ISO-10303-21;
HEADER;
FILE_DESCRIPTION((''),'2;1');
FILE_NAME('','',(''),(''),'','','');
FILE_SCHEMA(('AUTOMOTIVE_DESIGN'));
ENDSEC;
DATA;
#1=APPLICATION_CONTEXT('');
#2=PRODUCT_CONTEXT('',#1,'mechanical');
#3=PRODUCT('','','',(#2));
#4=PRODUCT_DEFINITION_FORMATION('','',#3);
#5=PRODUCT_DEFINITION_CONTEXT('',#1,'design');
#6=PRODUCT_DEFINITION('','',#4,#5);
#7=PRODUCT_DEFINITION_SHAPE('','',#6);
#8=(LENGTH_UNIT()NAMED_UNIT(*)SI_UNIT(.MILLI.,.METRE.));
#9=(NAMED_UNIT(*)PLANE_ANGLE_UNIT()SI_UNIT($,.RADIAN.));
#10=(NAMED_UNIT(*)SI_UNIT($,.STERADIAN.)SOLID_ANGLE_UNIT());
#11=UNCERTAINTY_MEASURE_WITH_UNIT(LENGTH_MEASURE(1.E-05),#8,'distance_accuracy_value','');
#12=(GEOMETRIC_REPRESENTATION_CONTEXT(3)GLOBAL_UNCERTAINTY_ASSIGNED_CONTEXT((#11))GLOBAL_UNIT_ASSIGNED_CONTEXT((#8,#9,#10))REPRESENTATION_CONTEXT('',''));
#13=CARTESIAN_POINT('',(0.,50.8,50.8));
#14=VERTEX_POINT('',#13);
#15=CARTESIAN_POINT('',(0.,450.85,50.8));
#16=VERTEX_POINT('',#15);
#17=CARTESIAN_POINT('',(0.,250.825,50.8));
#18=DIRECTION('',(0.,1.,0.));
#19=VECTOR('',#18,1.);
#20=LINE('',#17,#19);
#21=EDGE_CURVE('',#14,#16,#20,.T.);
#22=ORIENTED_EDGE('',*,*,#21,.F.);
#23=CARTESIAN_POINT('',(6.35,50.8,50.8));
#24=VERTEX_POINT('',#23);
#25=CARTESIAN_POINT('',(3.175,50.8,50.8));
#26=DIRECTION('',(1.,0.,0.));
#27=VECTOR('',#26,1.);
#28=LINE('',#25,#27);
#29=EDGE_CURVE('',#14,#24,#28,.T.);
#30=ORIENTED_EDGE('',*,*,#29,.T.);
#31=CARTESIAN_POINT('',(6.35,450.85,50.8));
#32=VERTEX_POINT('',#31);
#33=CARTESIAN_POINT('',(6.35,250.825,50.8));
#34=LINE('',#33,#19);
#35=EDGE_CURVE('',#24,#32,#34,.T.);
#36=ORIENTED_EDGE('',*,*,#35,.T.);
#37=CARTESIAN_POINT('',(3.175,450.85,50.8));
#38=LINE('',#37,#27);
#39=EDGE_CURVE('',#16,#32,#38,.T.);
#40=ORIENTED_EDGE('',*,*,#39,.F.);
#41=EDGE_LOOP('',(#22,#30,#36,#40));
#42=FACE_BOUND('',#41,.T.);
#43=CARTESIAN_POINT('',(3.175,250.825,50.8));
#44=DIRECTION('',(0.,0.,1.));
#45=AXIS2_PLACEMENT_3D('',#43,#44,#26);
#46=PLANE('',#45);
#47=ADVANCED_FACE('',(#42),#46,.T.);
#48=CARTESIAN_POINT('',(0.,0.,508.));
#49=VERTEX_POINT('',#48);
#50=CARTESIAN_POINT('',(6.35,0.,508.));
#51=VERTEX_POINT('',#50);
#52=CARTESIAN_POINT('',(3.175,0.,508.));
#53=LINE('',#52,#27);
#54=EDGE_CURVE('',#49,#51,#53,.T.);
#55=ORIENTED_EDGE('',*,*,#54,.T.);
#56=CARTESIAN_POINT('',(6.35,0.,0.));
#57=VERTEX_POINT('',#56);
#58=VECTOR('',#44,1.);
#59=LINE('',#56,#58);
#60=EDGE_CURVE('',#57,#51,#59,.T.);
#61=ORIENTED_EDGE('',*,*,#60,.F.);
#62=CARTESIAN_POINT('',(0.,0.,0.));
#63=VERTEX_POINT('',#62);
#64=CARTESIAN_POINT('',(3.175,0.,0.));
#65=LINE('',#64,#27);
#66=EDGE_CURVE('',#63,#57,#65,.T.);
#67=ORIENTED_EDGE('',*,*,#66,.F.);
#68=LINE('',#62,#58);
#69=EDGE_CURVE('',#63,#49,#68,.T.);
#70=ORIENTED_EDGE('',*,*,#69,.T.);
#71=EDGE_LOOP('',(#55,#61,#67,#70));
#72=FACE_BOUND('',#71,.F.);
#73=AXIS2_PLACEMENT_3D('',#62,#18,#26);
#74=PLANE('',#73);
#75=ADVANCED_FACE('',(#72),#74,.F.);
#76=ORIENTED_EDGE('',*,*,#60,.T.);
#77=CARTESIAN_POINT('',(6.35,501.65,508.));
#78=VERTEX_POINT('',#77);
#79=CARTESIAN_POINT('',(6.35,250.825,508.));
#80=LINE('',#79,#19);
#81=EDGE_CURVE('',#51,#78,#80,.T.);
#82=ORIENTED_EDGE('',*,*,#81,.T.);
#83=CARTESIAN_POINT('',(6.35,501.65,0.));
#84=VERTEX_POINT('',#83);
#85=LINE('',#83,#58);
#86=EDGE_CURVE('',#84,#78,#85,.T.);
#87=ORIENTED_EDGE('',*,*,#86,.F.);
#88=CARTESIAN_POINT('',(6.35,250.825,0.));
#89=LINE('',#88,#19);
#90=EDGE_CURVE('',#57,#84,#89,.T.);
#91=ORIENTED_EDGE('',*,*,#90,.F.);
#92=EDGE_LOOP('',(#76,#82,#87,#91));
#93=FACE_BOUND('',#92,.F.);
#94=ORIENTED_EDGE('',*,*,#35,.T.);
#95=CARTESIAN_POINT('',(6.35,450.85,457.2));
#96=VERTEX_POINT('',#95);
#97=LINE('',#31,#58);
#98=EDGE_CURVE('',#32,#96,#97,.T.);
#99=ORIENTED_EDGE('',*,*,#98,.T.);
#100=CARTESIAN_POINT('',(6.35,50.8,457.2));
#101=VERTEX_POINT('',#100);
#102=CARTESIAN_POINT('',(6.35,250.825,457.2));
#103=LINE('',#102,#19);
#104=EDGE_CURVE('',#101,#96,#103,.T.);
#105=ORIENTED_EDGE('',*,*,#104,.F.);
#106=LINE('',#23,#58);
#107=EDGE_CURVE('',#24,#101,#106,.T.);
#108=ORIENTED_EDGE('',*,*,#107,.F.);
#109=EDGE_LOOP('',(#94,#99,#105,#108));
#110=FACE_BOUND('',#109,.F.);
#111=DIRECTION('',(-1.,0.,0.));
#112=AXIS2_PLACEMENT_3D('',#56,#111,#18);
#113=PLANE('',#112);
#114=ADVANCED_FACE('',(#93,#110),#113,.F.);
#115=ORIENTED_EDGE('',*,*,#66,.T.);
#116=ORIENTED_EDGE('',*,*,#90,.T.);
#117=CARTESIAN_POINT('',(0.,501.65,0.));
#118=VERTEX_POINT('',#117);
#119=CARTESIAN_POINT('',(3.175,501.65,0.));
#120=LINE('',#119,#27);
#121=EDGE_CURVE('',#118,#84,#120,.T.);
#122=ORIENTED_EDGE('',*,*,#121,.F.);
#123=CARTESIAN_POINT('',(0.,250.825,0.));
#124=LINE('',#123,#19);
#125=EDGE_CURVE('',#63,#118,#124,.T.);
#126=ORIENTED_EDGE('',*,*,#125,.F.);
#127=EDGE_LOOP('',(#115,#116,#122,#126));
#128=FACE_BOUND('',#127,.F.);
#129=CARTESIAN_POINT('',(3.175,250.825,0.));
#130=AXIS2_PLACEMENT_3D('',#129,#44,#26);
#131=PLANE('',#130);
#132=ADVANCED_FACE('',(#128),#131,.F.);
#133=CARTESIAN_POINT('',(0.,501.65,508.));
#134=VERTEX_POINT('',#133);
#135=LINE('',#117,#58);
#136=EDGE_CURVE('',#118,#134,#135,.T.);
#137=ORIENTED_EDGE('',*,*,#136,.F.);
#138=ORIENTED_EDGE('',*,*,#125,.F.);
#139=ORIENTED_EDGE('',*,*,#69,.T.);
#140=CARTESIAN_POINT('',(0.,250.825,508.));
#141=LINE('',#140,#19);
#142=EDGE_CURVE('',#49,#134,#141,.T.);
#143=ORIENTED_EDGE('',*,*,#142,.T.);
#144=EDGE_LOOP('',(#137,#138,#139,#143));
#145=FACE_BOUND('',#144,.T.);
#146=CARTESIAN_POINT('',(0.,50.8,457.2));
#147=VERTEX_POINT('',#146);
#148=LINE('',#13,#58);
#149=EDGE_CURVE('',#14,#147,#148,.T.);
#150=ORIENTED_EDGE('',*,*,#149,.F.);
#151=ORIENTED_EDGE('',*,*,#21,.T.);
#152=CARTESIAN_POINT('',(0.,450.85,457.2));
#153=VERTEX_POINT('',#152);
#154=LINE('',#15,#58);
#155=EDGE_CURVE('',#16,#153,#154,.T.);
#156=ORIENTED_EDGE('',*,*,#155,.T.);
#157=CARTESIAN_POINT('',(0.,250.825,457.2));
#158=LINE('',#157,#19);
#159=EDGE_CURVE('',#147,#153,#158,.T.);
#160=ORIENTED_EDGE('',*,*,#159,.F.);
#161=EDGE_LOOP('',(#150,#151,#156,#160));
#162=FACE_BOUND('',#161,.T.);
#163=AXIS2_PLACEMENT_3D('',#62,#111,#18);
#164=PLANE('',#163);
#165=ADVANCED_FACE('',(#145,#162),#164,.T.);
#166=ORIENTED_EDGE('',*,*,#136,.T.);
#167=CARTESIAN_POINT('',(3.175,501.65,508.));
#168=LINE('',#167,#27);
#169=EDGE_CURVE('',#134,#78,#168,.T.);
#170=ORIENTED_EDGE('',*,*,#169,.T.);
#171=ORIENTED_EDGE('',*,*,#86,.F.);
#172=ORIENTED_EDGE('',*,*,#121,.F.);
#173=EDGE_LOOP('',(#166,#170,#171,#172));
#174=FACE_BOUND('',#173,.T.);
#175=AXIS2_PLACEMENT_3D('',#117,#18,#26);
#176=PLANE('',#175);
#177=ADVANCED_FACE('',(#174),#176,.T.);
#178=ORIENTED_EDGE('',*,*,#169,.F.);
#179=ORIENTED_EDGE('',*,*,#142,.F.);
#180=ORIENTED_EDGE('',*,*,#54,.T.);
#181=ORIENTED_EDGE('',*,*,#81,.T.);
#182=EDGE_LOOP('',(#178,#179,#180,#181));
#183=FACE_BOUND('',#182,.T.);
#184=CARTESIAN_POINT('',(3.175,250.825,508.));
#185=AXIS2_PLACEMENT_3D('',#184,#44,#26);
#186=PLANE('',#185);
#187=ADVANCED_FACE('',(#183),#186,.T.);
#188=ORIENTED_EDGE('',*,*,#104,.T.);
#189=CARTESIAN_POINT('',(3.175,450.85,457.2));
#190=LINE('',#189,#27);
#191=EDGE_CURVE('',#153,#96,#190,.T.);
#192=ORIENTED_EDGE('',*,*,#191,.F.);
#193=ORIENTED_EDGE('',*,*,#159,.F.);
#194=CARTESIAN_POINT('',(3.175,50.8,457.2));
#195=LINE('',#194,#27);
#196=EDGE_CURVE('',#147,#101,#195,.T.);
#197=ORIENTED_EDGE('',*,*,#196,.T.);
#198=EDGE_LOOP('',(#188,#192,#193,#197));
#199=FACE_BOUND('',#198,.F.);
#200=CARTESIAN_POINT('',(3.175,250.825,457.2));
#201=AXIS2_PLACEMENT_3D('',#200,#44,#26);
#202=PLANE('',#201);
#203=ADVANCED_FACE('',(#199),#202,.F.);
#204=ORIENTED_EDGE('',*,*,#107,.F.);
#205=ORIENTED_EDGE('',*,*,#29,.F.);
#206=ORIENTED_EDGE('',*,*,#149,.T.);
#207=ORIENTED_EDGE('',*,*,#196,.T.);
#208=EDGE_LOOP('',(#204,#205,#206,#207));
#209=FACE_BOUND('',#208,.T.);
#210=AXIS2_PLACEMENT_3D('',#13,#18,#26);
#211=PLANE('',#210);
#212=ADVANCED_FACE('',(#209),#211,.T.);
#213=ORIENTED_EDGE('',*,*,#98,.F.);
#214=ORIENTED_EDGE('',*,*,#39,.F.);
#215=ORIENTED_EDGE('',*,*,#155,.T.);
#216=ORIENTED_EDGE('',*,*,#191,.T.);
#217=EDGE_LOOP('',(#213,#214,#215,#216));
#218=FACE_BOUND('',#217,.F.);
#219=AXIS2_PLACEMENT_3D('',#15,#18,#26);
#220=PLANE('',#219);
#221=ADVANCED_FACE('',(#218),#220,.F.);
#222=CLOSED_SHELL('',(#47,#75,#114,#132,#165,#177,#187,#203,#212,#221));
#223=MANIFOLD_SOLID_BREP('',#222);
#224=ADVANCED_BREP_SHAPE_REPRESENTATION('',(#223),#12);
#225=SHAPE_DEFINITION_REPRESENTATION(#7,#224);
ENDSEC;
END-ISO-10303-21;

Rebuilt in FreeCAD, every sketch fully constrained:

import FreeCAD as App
import Part
import Sketcher
Q = App.Units.Quantity


def add_polygon(sketch, points):
    """Adds a closed chain of lines whose ends are joined by coincident constraints."""
    first, n = sketch.GeometryCount, len(points)
    for a, b in zip(points, points[1:] + points[:1]):
        sketch.addGeometry(Part.LineSegment(App.Vector(*a, 0), App.Vector(*b, 0)), False)
    for i in range(n):
        sketch.addConstraint(Sketcher.Constraint("Coincident", first + i, 2, first + (i + 1) % n, 1))

doc = App.newDocument("Part")
body = doc.addObject("PartDesign::Body", "Body")

sketch1 = body.newObject("Sketcher::SketchObject", "Sketch")
sketch1.AttachmentSupport = (doc.getObject("XY_Plane"), [""])
sketch1.MapMode = "FlatFace"
sketch1.AttachmentOffset = App.Placement(App.Vector(0, 0, 2 * 25.4), App.Rotation())
add_polygon(sketch1, [(0, 450.85), (0, 50.8), (6.35, 50.8), (6.35, 450.85)])
sketch1.addConstraint(Sketcher.Constraint("Vertical", 0))
sketch1.addConstraint(Sketcher.Constraint("Horizontal", 1))
sketch1.addConstraint(Sketcher.Constraint("Vertical", 2))
sketch1.addConstraint(Sketcher.Constraint("Horizontal", 3))
sketch1.addConstraint(Sketcher.Constraint("PointOnObject", 0, 2, -2))
sketch1.addConstraint(Sketcher.Constraint("DistanceY", -1, 1, 0, 2, Q("2 in")))
sketch1.addConstraint(Sketcher.Constraint("DistanceX", 1, 1, 1, 2, Q("0.25 in")))
sketch1.addConstraint(Sketcher.Constraint("DistanceY", 0, 2, 0, 1, Q("15.75 in")))
pad1 = body.newObject("PartDesign::Pad", "Pad")
pad1.Profile = sketch1
pad1.Length = Q("16 in")
body2 = doc.addObject("PartDesign::Body", "Body001")

sketch2 = body2.newObject("Sketcher::SketchObject", "Sketch001")
sketch2.AttachmentSupport = (doc.getObject("XY_Plane001"), [""])
sketch2.MapMode = "FlatFace"
add_polygon(sketch2, [(0, 501.65), (0, 0), (6.35, 0), (6.35, 501.65)])
sketch2.addConstraint(Sketcher.Constraint("Vertical", 0))
sketch2.addConstraint(Sketcher.Constraint("Horizontal", 1))
sketch2.addConstraint(Sketcher.Constraint("Vertical", 2))
sketch2.addConstraint(Sketcher.Constraint("Horizontal", 3))
sketch2.addConstraint(Sketcher.Constraint("Coincident", 0, 2, -1, 1))
sketch2.addConstraint(Sketcher.Constraint("DistanceX", 1, 1, 1, 2, Q("0.25 in")))
sketch2.addConstraint(Sketcher.Constraint("DistanceY", 0, 2, 0, 1, Q("19.75 in")))
pad2 = body2.newObject("PartDesign::Pad", "Pad001")
pad2.Profile = sketch2
pad2.Length = Q("20 in")
doc.recompute()

boolean = body2.newObject("PartDesign::Boolean", "Boolean")
boolean.Type = "Cut"
boolean.addObjects([body])

doc.recompute()
